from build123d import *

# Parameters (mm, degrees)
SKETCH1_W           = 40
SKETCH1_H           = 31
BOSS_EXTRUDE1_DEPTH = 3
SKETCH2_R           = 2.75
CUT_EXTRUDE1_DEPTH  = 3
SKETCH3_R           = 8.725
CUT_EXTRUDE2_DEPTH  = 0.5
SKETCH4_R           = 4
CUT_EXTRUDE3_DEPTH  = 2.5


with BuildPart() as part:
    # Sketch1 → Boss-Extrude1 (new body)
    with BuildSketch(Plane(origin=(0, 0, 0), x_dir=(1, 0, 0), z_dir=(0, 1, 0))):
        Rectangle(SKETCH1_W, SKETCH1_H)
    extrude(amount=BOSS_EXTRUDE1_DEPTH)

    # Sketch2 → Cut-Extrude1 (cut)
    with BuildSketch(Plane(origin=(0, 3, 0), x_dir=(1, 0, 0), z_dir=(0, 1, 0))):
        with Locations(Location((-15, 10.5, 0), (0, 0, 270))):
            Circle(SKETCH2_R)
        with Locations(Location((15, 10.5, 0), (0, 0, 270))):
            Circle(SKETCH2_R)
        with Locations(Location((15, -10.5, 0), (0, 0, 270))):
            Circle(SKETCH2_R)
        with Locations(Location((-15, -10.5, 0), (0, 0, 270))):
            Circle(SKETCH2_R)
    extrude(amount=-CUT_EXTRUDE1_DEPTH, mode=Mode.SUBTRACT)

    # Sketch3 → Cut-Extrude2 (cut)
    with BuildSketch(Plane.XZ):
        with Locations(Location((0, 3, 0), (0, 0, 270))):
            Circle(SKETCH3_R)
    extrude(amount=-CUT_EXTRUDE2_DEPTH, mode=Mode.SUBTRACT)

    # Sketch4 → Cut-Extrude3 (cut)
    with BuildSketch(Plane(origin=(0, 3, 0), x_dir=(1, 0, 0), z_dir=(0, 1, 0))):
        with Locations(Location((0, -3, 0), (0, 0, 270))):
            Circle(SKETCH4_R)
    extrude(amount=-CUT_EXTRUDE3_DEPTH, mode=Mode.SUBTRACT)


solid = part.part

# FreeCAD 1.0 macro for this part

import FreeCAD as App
import Part
import Sketcher
Q = App.Units.Quantity


def add_polygon(sketch, points):
    """Adds a closed chain of lines whose ends are joined by coincident constraints."""
    first, n = sketch.GeometryCount, len(points)
    for a, b in zip(points, points[1:] + points[:1]):
        sketch.addGeometry(Part.LineSegment(App.Vector(*a, 0), App.Vector(*b, 0)), False)
    for i in range(n):
        sketch.addConstraint(Sketcher.Constraint("Coincident", first + i, 2, first + (i + 1) % n, 1))

doc = App.newDocument("Part")
params = doc.addObject("Spreadsheet::Sheet", "Params")
for row, (alias, value) in enumerate([
    ("sketch1_width", "40 mm"),
    ("sketch1_height", "31 mm"),
    ("pad1_length", "3 mm"),
    ("sketch2_diameter", "5.5 mm"),
    ("pocket1_length", "3 mm"),
    ("sketch3_diameter", "17.45 mm"),
    ("pocket2_length", "0.5 mm"),
    ("sketch4_diameter", "8 mm"),
    ("pocket3_length", "2.5 mm"),
], start=1):
    params.set(f"A{row}", alias)
    params.set(f"B{row}", "=" + value)
    params.setAlias(f"B{row}", alias)

body = doc.addObject("PartDesign::Body", "Body")

sketch1 = doc.addObject("Sketcher::SketchObject", "Sketch")
body.addObject(sketch1)
sketch1.AttachmentSupport = (doc.XZ_Plane, [""])
sketch1.MapMode = "FlatFace"
add_polygon(sketch1, [(-20, -15.5), (-20, 15.5), (20, 15.5), (20, -15.5)])
sketch1.addConstraint([
    Sketcher.Constraint("Vertical", 0),
    Sketcher.Constraint("Horizontal", 1),
    Sketcher.Constraint("Vertical", 2),
    Sketcher.Constraint("Horizontal", 3),
    Sketcher.Constraint("Symmetric", 0, 2, 2, 2, -1, 1),
    Sketcher.Constraint("DistanceX", 1, 1, 1, 2, Q("40 mm")),
    Sketcher.Constraint("DistanceY", 0, 1, 0, 2, Q("31 mm")),
])
sketch1.setExpression("Constraints[9]", "Params.sketch1_width")
sketch1.setExpression("Constraints[10]", "Params.sketch1_height")
pad1 = doc.addObject("PartDesign::Pad", "Pad")
body.addObject(pad1)
pad1.Profile = sketch1
pad1.setExpression("Length", "Params.pad1_length")
pad1.Reversed = True

sketch2 = doc.addObject("Sketcher::SketchObject", "Sketch001")
body.addObject(sketch2)
sketch2.AttachmentSupport = (doc.XZ_Plane, [""])
sketch2.MapMode = "FlatFace"
sketch2.AttachmentOffset = App.Placement(App.Vector(0, 0, -3), App.Rotation())
sketch2.addGeometry([
    Part.Circle(App.Vector(-15, -10.5, 0), App.Vector(0, 0, 1), 2.75),
    Part.Circle(App.Vector(15, -10.5, 0), App.Vector(0, 0, 1), 2.75),
    Part.Circle(App.Vector(15, 10.5, 0), App.Vector(0, 0, 1), 2.75),
    Part.Circle(App.Vector(-15, 10.5, 0), App.Vector(0, 0, 1), 2.75),
], False)
sketch2.addConstraint([
    Sketcher.Constraint("Equal", 0, 1),
    Sketcher.Constraint("Equal", 1, 2),
    Sketcher.Constraint("Equal", 2, 3),
    Sketcher.Constraint("Symmetric", 0, 3, 2, 3, -1, 1),
    Sketcher.Constraint("Symmetric", 1, 3, 3, 3, -1, 1),
    Sketcher.Constraint("Symmetric", 0, 3, 1, 3, -2),
    Sketcher.Constraint("Diameter", 0, Q("5.5 mm")),
    Sketcher.Constraint("DistanceX", 0, 3, -1, 1, Q("15 mm")),
    Sketcher.Constraint("DistanceY", 1, 3, 2, 3, Q("21 mm")),
])
sketch2.setExpression("Constraints[6]", "Params.sketch2_diameter")
pocket1 = doc.addObject("PartDesign::Pocket", "Pocket")
body.addObject(pocket1)
pocket1.Profile = sketch2
pocket1.setExpression("Length", "Params.pocket1_length")
pocket1.Reversed = True

sketch3 = doc.addObject("Sketcher::SketchObject", "Sketch002")
body.addObject(sketch3)
sketch3.AttachmentSupport = (doc.XZ_Plane, [""])
sketch3.MapMode = "FlatFace"
sketch3.addGeometry(Part.Circle(App.Vector(0, 3, 0), App.Vector(0, 0, 1), 8.725), False)
sketch3.addConstraint([
    Sketcher.Constraint("PointOnObject", 0, 3, -2),
    Sketcher.Constraint("Diameter", 0, Q("17.45 mm")),
    Sketcher.Constraint("DistanceY", -1, 1, 0, 3, Q("3 mm")),
])
sketch3.setExpression("Constraints[1]", "Params.sketch3_diameter")
pocket2 = doc.addObject("PartDesign::Pocket", "Pocket001")
body.addObject(pocket2)
pocket2.Profile = sketch3
pocket2.setExpression("Length", "Params.pocket2_length")

sketch4 = doc.addObject("Sketcher::SketchObject", "Sketch003")
body.addObject(sketch4)
sketch4.AttachmentSupport = (doc.XZ_Plane, [""])
sketch4.MapMode = "FlatFace"
sketch4.AttachmentOffset = App.Placement(App.Vector(0, 0, -3), App.Rotation())
sketch4.addGeometry(Part.Circle(App.Vector(0, 3, 0), App.Vector(0, 0, 1), 4), False)
sketch4.addConstraint([
    Sketcher.Constraint("PointOnObject", 0, 3, -2),
    Sketcher.Constraint("Diameter", 0, Q("8 mm")),
    Sketcher.Constraint("DistanceY", -1, 1, 0, 3, Q("3 mm")),
])
sketch4.setExpression("Constraints[1]", "Params.sketch4_diameter")
pocket3 = doc.addObject("PartDesign::Pocket", "Pocket002")
body.addObject(pocket3)
pocket3.Profile = sketch4
pocket3.setExpression("Length", "Params.pocket3_length")
pocket3.Reversed = True

doc.recompute()
